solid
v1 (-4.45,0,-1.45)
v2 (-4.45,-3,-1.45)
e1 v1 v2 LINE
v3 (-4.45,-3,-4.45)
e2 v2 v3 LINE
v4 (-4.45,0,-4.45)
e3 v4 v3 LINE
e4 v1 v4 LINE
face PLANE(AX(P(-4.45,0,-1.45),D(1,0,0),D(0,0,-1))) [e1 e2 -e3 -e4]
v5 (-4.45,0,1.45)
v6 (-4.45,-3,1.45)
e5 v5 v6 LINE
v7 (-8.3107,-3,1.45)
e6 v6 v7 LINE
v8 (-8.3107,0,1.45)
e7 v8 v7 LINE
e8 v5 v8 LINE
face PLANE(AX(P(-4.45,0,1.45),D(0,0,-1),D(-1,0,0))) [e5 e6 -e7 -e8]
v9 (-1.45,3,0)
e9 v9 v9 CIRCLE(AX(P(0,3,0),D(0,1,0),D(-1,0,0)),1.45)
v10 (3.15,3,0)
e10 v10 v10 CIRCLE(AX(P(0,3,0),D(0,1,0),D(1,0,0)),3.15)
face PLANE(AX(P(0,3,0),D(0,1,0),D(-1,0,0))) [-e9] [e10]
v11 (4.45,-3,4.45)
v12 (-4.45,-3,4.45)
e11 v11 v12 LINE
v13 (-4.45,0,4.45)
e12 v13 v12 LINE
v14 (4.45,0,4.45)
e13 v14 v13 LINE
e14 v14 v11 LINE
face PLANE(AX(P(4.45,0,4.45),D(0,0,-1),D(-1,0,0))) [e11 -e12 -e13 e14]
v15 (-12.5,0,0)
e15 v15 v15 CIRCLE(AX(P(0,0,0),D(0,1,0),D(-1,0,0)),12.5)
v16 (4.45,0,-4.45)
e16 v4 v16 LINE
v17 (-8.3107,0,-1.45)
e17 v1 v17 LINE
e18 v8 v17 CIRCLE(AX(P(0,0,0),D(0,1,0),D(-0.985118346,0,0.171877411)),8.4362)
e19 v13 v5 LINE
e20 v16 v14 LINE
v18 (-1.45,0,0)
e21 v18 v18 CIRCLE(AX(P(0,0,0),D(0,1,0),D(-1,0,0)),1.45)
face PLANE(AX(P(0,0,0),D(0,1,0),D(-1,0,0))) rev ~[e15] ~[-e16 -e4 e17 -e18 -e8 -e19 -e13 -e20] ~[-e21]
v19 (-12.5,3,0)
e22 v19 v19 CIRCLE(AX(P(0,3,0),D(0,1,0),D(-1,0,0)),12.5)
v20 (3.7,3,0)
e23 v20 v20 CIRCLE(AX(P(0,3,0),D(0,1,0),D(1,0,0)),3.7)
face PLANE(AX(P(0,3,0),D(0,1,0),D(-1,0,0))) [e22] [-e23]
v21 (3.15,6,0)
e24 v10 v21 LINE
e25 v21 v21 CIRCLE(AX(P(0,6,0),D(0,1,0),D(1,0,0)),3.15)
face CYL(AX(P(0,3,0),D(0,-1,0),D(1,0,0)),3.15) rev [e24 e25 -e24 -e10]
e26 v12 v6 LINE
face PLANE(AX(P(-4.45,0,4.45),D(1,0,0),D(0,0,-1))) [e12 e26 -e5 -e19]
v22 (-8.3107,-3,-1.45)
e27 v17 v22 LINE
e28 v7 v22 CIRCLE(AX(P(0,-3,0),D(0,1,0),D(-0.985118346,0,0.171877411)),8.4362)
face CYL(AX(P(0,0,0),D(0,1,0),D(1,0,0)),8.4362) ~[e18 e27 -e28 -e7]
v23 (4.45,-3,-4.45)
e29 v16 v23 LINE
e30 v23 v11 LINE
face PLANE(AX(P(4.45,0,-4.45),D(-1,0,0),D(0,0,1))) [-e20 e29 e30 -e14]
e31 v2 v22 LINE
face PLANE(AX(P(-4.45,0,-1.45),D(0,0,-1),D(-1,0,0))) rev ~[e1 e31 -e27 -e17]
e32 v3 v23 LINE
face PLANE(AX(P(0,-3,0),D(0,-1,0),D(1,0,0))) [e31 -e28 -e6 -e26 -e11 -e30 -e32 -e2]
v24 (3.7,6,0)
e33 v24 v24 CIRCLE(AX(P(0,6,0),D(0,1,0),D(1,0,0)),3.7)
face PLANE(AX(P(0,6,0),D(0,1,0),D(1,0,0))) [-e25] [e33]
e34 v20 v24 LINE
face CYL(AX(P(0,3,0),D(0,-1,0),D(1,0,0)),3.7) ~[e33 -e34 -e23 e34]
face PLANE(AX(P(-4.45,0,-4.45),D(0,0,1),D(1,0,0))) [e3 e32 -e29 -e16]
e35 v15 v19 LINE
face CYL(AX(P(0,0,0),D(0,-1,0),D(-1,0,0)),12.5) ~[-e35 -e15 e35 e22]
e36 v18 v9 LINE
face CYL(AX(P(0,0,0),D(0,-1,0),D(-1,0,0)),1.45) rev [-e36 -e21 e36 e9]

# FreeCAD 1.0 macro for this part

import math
import FreeCAD as App
import Part
import Sketcher

V = App.Vector
Q = App.Units.Quantity

doc = App.newDocument("Part")
params = doc.addObject("Spreadsheet::Sheet", "Params")
for row, (alias, value) in enumerate([
    ("sketch1_diameter", "25 mm"),
    ("sketch1_diameter2", "2.9 mm"),
    ("pad1_length", "3 mm"),
    ("sketch2_diameter", "7.4 mm"),
    ("sketch2_diameter2", "6.3 mm"),
    ("pad2_length", "3 mm"),
    ("sketch3_width", "8.9 mm"),
    ("sketch3_height", "3 mm"),
    ("pad3_length", "3 mm"),
], start=1):
    params.set(f"A{row}", alias)
    params.set(f"B{row}", "=" + value)
    params.setAlias(f"B{row}", alias)

body = doc.addObject("PartDesign::Body", "Body")

# Sketch on XZ plane
sketch1 = body.newObject("Sketcher::SketchObject", "Sketch")
sketch1.AttachmentSupport = (doc.getObject("XZ_Plane"), [""])
sketch1.MapMode = "FlatFace"
sketch1.addGeometry([
    Part.Circle(V(0, 0, 0), V(0, 0, 1), 12.5),
    Part.Circle(V(0, 0, 0), V(0, 0, 1), 1.4),
], False)
sketch1.addConstraint([
    Sketcher.Constraint("Coincident", 0, 3, -1, 1),
    Sketcher.Constraint("Coincident", 1, 3, -1, 1),
    Sketcher.Constraint("Diameter", 0, Q("25 mm")),
    Sketcher.Constraint("Diameter", 1, Q("2.9 mm")),
])
sketch1.setExpression("Constraints[2]", "Params.sketch1_diameter")
sketch1.setExpression("Constraints[3]", "Params.sketch1_diameter2")
pad1 = body.newObject("PartDesign::Pad", "Pad")
pad1.Profile = sketch1
pad1.setExpression("Length", "Params.pad1_length")
pad1.Reversed = True

# Sketch on XZ plane
sketch2 = body.newObject("Sketcher::SketchObject", "Sketch001")
sketch2.AttachmentSupport = (doc.getObject("XZ_Plane"), [""])
sketch2.MapMode = "FlatFace"
sketch2.AttachmentOffset = App.Placement(V(0, 0, -3), App.Rotation())
sketch2.addGeometry([
    Part.Circle(V(0, 0, 0), V(0, 0, 1), 3.7),
    Part.Circle(V(0, 0, 0), V(0, 0, 1), 3.1),
], False)
sketch2.addConstraint([
    Sketcher.Constraint("Coincident", 0, 3, -1, 1),
    Sketcher.Constraint("Coincident", 1, 3, -1, 1),
    Sketcher.Constraint("Diameter", 0, Q("7.4 mm")),
    Sketcher.Constraint("Diameter", 1, Q("6.3 mm")),
])
sketch2.setExpression("Constraints[2]", "Params.sketch2_diameter")
sketch2.setExpression("Constraints[3]", "Params.sketch2_diameter2")
pad2 = body.newObject("PartDesign::Pad", "Pad001")
pad2.Profile = sketch2
pad2.setExpression("Length", "Params.pad2_length")
pad2.Reversed = True

# Sketch on XZ plane
sketch3 = body.newObject("Sketcher::SketchObject", "Sketch002")
sketch3.AttachmentSupport = (doc.getObject("XZ_Plane"), [""])
sketch3.MapMode = "FlatFace"
sketch3.addGeometry([
    Part.LineSegment(V(4.5, -4.5, 0), V(-4.5, -4.5, 0)),  # 0
    Part.LineSegment(V(-4.5, -4.5, 0), V(-4.5, -1.4, 0)),  # 1
    Part.LineSegment(V(-4.5, -1.4, 0), V(-8.3, -1.4, 0)),  # 2
    Part.ArcOfCircle(Part.Circle(V(0, 0, 0), V(0, 0, 1), 8.4), math.radians(-170), math.radians(170)),  # 3
    Part.LineSegment(V(-8.3, 1.4, 0), V(-4.5, 1.4, 0)),  # 4
    Part.LineSegment(V(-4.5, 1.4, 0), V(-4.5, 4.5, 0)),  # 5
    Part.LineSegment(V(-4.5, 4.5, 0), V(4.5, 4.5, 0)),  # 6
    Part.LineSegment(V(4.5, 4.5, 0), V(4.5, -4.5, 0)),  # 7
], False)
sketch3.addConstraint([
    Sketcher.Constraint("Coincident", 0, 2, 1, 1),
    Sketcher.Constraint("Coincident", 1, 2, 2, 1),
    Sketcher.Constraint("Coincident", 2, 2, 3, 1),
    Sketcher.Constraint("Coincident", 3, 2, 4, 1),
    Sketcher.Constraint("Coincident", 4, 2, 5, 1),
    Sketcher.Constraint("Coincident", 5, 2, 6, 1),
    Sketcher.Constraint("Coincident", 6, 2, 7, 1),
    Sketcher.Constraint("Coincident", 7, 2, 0, 1),
    Sketcher.Constraint("Horizontal", 0),
    Sketcher.Constraint("Vertical", 1),
    Sketcher.Constraint("Horizontal", 2),
    Sketcher.Constraint("Horizontal", 4),
    Sketcher.Constraint("Vertical", 5),
    Sketcher.Constraint("Horizontal", 6),
    Sketcher.Constraint("Vertical", 7),
    Sketcher.Constraint("Coincident", 3, 3, -1, 1),
    Sketcher.Constraint("Symmetric", 0, 2, 6, 2, -1, 1),
    Sketcher.Constraint("Symmetric", 1, 2, 4, 2, -1),
    Sketcher.Constraint("Equal", 6, 7),
    Sketcher.Constraint("DistanceX", 0, 2, 0, 1, Q("8.9 mm")),
    Sketcher.Constraint("DistanceY", 1, 1, 1, 2, Q("3 mm")),
    Sketcher.Constraint("Radius", 3, Q("8.4362 mm")),
])
sketch3.setExpression("Constraints[19]", "Params.sketch3_width")
sketch3.setExpression("Constraints[20]", "Params.sketch3_height")
pad3 = body.newObject("PartDesign::Pad", "Pad002")
pad3.Profile = sketch3
pad3.setExpression("Length", "Params.pad3_length")

doc.recompute()
